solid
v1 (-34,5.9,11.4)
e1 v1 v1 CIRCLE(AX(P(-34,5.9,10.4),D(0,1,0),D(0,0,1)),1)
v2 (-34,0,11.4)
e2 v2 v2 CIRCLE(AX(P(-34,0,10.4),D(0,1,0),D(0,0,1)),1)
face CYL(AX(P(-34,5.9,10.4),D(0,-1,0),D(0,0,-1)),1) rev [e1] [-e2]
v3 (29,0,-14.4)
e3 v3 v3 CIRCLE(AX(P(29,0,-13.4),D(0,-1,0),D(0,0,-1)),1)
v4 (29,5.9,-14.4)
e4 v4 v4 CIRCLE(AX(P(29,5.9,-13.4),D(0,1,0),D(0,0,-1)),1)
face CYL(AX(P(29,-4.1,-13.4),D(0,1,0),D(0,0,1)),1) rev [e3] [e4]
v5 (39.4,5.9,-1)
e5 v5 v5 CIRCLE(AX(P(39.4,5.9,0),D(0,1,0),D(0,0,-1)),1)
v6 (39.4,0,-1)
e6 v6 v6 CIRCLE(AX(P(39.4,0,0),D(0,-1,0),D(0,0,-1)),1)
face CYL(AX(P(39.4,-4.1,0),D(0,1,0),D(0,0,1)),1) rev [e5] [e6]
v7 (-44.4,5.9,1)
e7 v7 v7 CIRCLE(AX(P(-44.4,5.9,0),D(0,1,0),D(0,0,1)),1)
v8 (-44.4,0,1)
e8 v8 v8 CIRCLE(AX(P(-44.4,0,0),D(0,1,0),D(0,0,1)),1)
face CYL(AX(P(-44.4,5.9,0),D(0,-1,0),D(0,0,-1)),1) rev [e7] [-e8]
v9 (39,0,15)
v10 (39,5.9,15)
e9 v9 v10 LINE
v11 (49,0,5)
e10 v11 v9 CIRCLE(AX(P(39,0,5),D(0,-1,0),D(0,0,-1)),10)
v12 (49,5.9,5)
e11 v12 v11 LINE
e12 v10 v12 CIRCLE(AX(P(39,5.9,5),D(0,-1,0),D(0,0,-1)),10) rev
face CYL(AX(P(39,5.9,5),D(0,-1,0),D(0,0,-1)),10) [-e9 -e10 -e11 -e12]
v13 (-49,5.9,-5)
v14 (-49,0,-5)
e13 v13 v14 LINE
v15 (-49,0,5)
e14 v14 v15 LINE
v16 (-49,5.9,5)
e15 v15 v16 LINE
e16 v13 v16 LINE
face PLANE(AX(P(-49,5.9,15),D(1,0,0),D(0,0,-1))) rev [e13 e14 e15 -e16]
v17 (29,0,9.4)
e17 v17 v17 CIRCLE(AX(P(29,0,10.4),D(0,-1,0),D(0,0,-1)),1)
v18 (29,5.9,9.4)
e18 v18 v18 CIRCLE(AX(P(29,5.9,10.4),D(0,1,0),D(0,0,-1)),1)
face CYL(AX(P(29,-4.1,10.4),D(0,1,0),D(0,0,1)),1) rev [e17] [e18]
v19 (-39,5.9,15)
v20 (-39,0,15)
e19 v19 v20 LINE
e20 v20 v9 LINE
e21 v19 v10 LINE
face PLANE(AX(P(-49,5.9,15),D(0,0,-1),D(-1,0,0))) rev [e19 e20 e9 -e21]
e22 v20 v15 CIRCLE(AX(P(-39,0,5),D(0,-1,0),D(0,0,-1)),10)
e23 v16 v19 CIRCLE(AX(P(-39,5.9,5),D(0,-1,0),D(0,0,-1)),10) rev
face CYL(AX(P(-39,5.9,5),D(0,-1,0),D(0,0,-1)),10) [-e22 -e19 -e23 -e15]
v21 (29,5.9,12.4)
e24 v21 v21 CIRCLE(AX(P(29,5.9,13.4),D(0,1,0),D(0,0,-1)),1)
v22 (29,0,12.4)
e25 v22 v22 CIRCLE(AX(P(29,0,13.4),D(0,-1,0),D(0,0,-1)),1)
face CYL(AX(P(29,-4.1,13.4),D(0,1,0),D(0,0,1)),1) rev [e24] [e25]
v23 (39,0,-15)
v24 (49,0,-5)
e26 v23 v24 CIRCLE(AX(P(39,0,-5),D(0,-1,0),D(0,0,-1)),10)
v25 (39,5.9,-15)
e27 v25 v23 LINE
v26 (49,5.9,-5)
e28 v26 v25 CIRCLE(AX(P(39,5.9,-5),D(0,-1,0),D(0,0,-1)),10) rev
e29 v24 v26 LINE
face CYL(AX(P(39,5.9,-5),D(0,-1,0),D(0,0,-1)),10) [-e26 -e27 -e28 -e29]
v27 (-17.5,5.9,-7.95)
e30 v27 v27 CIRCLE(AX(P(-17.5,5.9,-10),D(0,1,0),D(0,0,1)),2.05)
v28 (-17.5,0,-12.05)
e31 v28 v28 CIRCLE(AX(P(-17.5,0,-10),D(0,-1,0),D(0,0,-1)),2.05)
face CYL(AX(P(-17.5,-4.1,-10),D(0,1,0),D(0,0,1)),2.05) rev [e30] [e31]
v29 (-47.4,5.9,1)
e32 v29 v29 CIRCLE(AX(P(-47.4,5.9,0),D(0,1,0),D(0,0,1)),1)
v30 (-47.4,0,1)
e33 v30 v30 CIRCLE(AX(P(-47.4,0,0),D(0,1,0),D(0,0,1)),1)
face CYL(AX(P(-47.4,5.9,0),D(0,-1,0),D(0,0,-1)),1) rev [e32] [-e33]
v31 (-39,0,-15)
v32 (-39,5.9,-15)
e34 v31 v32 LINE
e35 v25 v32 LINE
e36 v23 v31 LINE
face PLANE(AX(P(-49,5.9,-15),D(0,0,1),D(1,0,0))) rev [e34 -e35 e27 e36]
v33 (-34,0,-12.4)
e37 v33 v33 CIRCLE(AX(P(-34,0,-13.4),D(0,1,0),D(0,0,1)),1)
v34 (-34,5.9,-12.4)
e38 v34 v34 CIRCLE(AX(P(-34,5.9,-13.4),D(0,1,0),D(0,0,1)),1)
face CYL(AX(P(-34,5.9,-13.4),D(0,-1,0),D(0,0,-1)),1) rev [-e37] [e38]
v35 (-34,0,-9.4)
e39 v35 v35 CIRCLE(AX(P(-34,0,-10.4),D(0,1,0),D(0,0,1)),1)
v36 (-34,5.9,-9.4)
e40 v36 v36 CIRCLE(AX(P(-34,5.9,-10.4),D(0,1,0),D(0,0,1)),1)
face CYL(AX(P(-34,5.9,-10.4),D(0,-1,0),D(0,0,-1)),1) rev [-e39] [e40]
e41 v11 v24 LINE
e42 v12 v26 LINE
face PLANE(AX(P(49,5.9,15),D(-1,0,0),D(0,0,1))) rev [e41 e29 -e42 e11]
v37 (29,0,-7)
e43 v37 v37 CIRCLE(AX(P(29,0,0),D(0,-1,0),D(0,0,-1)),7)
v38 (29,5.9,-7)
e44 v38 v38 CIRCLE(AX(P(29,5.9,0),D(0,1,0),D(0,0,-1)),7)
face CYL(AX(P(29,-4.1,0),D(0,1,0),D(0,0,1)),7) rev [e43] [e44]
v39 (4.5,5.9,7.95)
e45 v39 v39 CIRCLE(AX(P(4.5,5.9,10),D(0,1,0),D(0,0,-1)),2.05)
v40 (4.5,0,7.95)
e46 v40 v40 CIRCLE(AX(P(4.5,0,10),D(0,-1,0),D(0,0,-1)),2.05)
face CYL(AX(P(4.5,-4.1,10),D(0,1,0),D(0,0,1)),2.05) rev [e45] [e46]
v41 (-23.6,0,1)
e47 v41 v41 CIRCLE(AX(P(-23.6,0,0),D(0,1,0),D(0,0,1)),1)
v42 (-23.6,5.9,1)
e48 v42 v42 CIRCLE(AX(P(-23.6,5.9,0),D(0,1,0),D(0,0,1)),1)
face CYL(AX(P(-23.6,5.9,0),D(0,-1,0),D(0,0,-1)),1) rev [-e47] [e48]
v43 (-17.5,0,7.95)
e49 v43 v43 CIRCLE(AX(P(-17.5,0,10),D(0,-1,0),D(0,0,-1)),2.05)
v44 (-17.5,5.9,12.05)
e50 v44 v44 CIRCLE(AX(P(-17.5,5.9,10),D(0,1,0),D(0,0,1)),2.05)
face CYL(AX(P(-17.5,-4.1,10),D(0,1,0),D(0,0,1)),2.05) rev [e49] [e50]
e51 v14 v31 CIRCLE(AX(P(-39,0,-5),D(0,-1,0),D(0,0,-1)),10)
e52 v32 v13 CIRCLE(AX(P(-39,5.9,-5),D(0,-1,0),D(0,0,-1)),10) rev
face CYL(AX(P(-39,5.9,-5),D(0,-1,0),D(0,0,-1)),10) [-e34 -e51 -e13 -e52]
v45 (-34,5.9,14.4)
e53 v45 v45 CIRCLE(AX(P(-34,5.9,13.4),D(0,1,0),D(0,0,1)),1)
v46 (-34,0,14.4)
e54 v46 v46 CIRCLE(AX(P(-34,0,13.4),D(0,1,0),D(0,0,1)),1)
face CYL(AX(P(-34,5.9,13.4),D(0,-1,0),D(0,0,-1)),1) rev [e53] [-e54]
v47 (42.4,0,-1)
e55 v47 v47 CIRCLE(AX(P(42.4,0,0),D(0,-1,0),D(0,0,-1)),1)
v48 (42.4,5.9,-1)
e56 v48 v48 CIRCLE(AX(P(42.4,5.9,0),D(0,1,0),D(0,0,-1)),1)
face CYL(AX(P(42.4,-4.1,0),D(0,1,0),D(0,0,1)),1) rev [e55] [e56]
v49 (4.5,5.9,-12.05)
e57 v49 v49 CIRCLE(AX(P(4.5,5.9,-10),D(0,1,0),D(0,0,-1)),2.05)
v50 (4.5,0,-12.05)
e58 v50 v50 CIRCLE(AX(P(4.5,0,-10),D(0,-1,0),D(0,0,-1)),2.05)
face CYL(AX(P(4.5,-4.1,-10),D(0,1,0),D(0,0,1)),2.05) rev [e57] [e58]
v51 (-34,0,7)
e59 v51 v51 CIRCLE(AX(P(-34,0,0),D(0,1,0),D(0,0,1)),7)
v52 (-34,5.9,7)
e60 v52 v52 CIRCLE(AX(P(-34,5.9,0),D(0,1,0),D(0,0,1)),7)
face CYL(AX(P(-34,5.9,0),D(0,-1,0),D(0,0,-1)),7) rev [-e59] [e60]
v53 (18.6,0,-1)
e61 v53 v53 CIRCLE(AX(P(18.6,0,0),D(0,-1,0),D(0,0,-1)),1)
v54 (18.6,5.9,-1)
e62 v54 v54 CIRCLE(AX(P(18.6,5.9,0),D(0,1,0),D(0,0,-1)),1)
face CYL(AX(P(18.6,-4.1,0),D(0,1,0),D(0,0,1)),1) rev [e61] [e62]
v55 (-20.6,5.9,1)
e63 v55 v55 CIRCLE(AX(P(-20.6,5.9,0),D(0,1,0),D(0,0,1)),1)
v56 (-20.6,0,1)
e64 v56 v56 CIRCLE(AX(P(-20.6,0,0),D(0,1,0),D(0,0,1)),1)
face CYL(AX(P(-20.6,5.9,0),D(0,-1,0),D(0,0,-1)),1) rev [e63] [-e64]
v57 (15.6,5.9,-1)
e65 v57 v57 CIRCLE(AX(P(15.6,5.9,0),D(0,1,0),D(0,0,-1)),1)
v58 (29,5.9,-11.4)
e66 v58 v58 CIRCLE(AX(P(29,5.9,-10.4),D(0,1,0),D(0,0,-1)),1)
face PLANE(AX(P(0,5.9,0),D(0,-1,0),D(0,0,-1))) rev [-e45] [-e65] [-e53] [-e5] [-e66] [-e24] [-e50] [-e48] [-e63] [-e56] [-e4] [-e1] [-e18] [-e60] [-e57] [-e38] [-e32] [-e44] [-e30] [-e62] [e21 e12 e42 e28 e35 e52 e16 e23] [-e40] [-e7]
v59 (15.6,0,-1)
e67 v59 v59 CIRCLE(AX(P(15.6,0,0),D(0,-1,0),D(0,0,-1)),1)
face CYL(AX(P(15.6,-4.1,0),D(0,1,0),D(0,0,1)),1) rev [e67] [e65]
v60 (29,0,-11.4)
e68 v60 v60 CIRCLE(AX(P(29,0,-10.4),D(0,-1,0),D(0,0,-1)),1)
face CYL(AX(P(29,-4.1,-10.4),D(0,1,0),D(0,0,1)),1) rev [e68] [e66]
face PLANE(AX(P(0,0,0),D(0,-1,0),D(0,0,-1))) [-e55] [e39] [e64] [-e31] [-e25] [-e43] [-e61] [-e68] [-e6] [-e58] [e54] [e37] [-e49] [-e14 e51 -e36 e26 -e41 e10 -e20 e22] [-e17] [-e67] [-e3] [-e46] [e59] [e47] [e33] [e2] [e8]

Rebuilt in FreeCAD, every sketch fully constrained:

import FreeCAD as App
import Part
import Sketcher


def edges_at(feature, points):
    """Names of the edges that pass closest to the given points."""
    edges = feature.Shape.Edges
    near = lambda p: min(range(len(edges)), key=lambda i: edges[i].distToShape(Part.Vertex(*p))[0])
    return sorted({f"Edge{near(p) + 1}" for p in points})


def add_polygon(sketch, points):
    """Adds a closed chain of lines whose ends are joined by coincident constraints."""
    first, n = sketch.GeometryCount, len(points)
    for a, b in zip(points, points[1:] + points[:1]):
        sketch.addGeometry(Part.LineSegment(App.Vector(*a, 0), App.Vector(*b, 0)), False)
    for i in range(n):
        sketch.addConstraint(Sketcher.Constraint("Coincident", first + i, 2, first + (i + 1) % n, 1))

doc = App.newDocument("Part")
body = doc.addObject("PartDesign::Body", "Body")

# Sketch on XZ plane
sketch1 = doc.addObject("Sketcher::SketchObject", "Sketch")
body.addObject(sketch1)
sketch1.AttachmentSupport = (doc.XZ_Plane, [""])
sketch1.MapMode = "FlatFace"
add_polygon(sketch1, [(-49, -15), (-49, 15), (49, 15), (49, -15)])  # lines 0-3
sketch1.addGeometry(Part.Circle(App.Vector(-34, 13.4, 0), App.Vector(0, 0, 1), 1), False)  # 4
sketch1.addGeometry(Part.Circle(App.Vector(-34, 10.4, 0), App.Vector(0, 0, 1), 1), False)  # 5
sketch1.addGeometry(Part.Circle(App.Vector(-47.4, 0, 0), App.Vector(0, 0, 1), 1), False)  # 6
sketch1.addGeometry(Part.Circle(App.Vector(-44.4, 0, 0), App.Vector(0, 0, 1), 1), False)  # 7
sketch1.addGeometry(Part.Circle(App.Vector(-34, 0, 0), App.Vector(0, 0, 1), 7), False)  # 8
sketch1.addGeometry(Part.Circle(App.Vector(-23.6, 0, 0), App.Vector(0, 0, 1), 1), False)  # 9
sketch1.addGeometry(Part.Circle(App.Vector(-20.6, 0, 0), App.Vector(0, 0, 1), 1), False)  # 10
sketch1.addGeometry(Part.Circle(App.Vector(-34, -10.4, 0), App.Vector(0, 0, 1), 1), False)  # 11
sketch1.addGeometry(Part.Circle(App.Vector(-34, -13.4, 0), App.Vector(0, 0, 1), 1), False)  # 12
sketch1.addConstraint([
    Sketcher.Constraint("Vertical", 0),
    Sketcher.Constraint("Horizontal", 1),
    Sketcher.Constraint("Vertical", 2),
    Sketcher.Constraint("Horizontal", 3),
    Sketcher.Constraint("Equal", 4, 5),
    Sketcher.Constraint("Equal", 5, 6),
    Sketcher.Constraint("Equal", 6, 7),
    Sketcher.Constraint("Equal", 7, 9),
    Sketcher.Constraint("Equal", 9, 10),
    Sketcher.Constraint("Equal", 10, 11),
    Sketcher.Constraint("Equal", 11, 12),
    Sketcher.Constraint("Symmetric", 0, 2, 2, 2, -1, 1),
    Sketcher.Constraint("Symmetric", 5, 3, 11, 3, -1),
    Sketcher.Constraint("Symmetric", 4, 3, 12, 3, -1),
    Sketcher.Constraint("PointOnObject", 6, 3, -1),
    Sketcher.Constraint("PointOnObject", 7, 3, -1),
    Sketcher.Constraint("PointOnObject", 8, 3, -1),
    Sketcher.Constraint("PointOnObject", 9, 3, -1),
    Sketcher.Constraint("PointOnObject", 10, 3, -1),
    Sketcher.Constraint("Vertical", 4, 3, 5, 3),
    Sketcher.Constraint("Vertical", 5, 3, 8, 3),
    Sketcher.Constraint("Diameter", 4, 2.0),
    Sketcher.Constraint("Diameter", 8, 14.0),
    Sketcher.Constraint("DistanceX", 1, 1, 1, 2, 98.0),
    Sketcher.Constraint("DistanceY", 0, 1, 0, 2, 30.0),
    Sketcher.Constraint("DistanceX", 4, 3, -1, 1, 34.0),
    Sketcher.Constraint("DistanceY", 5, 3, 4, 3, 3.0),
    Sketcher.Constraint("DistanceX", 6, 3, 7, 3, 3.0),
    Sketcher.Constraint("DistanceX", 9, 3, 10, 3, 3.0),
    Sketcher.Constraint("DistanceY", -1, 1, 4, 3, 13.4),
    Sketcher.Constraint("DistanceX", 6, 3, -1, 1, 47.4),
    Sketcher.Constraint("DistanceX", 9, 3, -1, 1, 23.6),
])
pad1 = doc.addObject("PartDesign::Pad", "Pad")
body.addObject(pad1)
pad1.Profile = sketch1
pad1.Length = 5.9
pad1.Reversed = True

# Sketch on XZ plane
sketch2 = doc.addObject("Sketcher::SketchObject", "Sketch001")
body.addObject(sketch2)
sketch2.AttachmentSupport = (doc.XZ_Plane, [""])
sketch2.MapMode = "FlatFace"
sketch2.AttachmentOffset = App.Placement(App.Vector(0, 0, -5.9), App.Rotation())
sketch2.addGeometry([
    Part.Circle(App.Vector(-34, 0, 0), App.Vector(0, 0, 1), 7),  # 0
    Part.Circle(App.Vector(-34, 13.4, 0), App.Vector(0, 0, 1), 1),  # 1
    Part.Circle(App.Vector(-34, 10.4, 0), App.Vector(0, 0, 1), 1),  # 2
    Part.Circle(App.Vector(-44.4, 0, 0), App.Vector(0, 0, 1), 1),  # 3
    Part.Circle(App.Vector(-47.4, 0, 0), App.Vector(0, 0, 1), 1),  # 4
    Part.Circle(App.Vector(-34, -13.4, 0), App.Vector(0, 0, 1), 1),  # 5
    Part.Circle(App.Vector(-23.6, 0, 0), App.Vector(0, 0, 1), 1),  # 6
    Part.Circle(App.Vector(-20.6, 0, 0), App.Vector(0, 0, 1), 1),  # 7
    Part.Circle(App.Vector(-34, -10.4, 0), App.Vector(0, 0, 1), 1),  # 8
    Part.Circle(App.Vector(29, 13.4, 0), App.Vector(0, 0, 1), 1),  # 9
    Part.Circle(App.Vector(29, 10.4, 0), App.Vector(0, 0, 1), 1),  # 10
    Part.Circle(App.Vector(42.4, 0, 0), App.Vector(0, 0, 1), 1),  # 11
    Part.Circle(App.Vector(39.4, 0, 0), App.Vector(0, 0, 1), 1),  # 12
    Part.Circle(App.Vector(29, 0, 0), App.Vector(0, 0, 1), 7),  # 13
    Part.Circle(App.Vector(29, -10.4, 0), App.Vector(0, 0, 1), 1),  # 14
    Part.Circle(App.Vector(29, -13.4, 0), App.Vector(0, 0, 1), 1),  # 15
    Part.Circle(App.Vector(18.6, 0, 0), App.Vector(0, 0, 1), 1),  # 16
    Part.Circle(App.Vector(15.6, 0, 0), App.Vector(0, 0, 1), 1),  # 17
], False)
sketch2.addConstraint([
    Sketcher.Constraint("Equal", 1, 2),
    Sketcher.Constraint("Equal", 2, 3),
    Sketcher.Constraint("Equal", 3, 4),
    Sketcher.Constraint("Equal", 4, 5),
    Sketcher.Constraint("Equal", 5, 6),
    Sketcher.Constraint("Equal", 6, 7),
    Sketcher.Constraint("Equal", 7, 8),
    Sketcher.Constraint("Equal", 8, 9),
    Sketcher.Constraint("Equal", 9, 10),
    Sketcher.Constraint("Equal", 10, 11),
    Sketcher.Constraint("Equal", 11, 12),
    Sketcher.Constraint("Equal", 0, 13),
    Sketcher.Constraint("Equal", 12, 14),
    Sketcher.Constraint("Equal", 14, 15),
    Sketcher.Constraint("Equal", 15, 16),
    Sketcher.Constraint("Equal", 16, 17),
    Sketcher.Constraint("Symmetric", 1, 3, 5, 3, -1),
    Sketcher.Constraint("Symmetric", 2, 3, 8, 3, -1),
    Sketcher.Constraint("Symmetric", 10, 3, 14, 3, -1),
    Sketcher.Constraint("Symmetric", 9, 3, 15, 3, -1),
    Sketcher.Constraint("PointOnObject", 0, 3, -1),
    Sketcher.Constraint("PointOnObject", 3, 3, -1),
    Sketcher.Constraint("PointOnObject", 4, 3, -1),
    Sketcher.Constraint("PointOnObject", 6, 3, -1),
    Sketcher.Constraint("PointOnObject", 7, 3, -1),
    Sketcher.Constraint("PointOnObject", 11, 3, -1),
    Sketcher.Constraint("PointOnObject", 12, 3, -1),
    Sketcher.Constraint("PointOnObject", 13, 3, -1),
    Sketcher.Constraint("PointOnObject", 16, 3, -1),
    Sketcher.Constraint("PointOnObject", 17, 3, -1),
    Sketcher.Constraint("Horizontal", 1, 3, 9, 3),
    Sketcher.Constraint("Horizontal", 2, 3, 10, 3),
    Sketcher.Constraint("Vertical", 0, 3, 1, 3),
    Sketcher.Constraint("Vertical", 1, 3, 2, 3),
    Sketcher.Constraint("Vertical", 9, 3, 10, 3),
    Sketcher.Constraint("Vertical", 10, 3, 13, 3),
    Sketcher.Constraint("Diameter", 0, 14.0),
    Sketcher.Constraint("Diameter", 1, 2.0),
    Sketcher.Constraint("DistanceX", 0, 3, -1, 1, 34.0),
    Sketcher.Constraint("DistanceX", -1, 1, 9, 3, 29.0),
    Sketcher.Constraint("DistanceY", 2, 3, 1, 3, 3.0),
    Sketcher.Constraint("DistanceX", 4, 3, 3, 3, 3.0),
    Sketcher.Constraint("DistanceX", 6, 3, 7, 3, 3.0),
    Sketcher.Constraint("DistanceX", 7, 3, 11, 3, 63.0),
    Sketcher.Constraint("DistanceX", 12, 3, 11, 3, 3.0),
    Sketcher.Constraint("DistanceX", 17, 3, 16, 3, 3.0),
    Sketcher.Constraint("DistanceY", -1, 1, 1, 3, 13.4),
    Sketcher.Constraint("DistanceX", 3, 3, -1, 1, 44.4),
    Sketcher.Constraint("DistanceX", 6, 3, -1, 1, 23.6),
    Sketcher.Constraint("DistanceX", -1, 1, 16, 3, 18.6),
])
pocket1 = doc.addObject("PartDesign::Pocket", "Pocket")
body.addObject(pocket1)
pocket1.Profile = sketch2
pocket1.Length = 10
pocket1.Reversed = True
doc.recompute()

fillet = doc.addObject("PartDesign::Fillet", "Fillet")
body.addObject(fillet)
fillet.Base = (pocket1, edges_at(pocket1, [
    (49, 2.95, 15),
    (-49, 2.95, 15),
    (-49, 2.95, -15),
    (49, 2.95, -15),
]))
fillet.Radius = 10

# Sketch on XZ plane
sketch3 = doc.addObject("Sketcher::SketchObject", "Sketch002")
body.addObject(sketch3)
sketch3.AttachmentSupport = (doc.XZ_Plane, [""])
sketch3.MapMode = "FlatFace"
sketch3.AttachmentOffset = App.Placement(App.Vector(0, 0, -5.9), App.Rotation())
sketch3.addGeometry([
    Part.Circle(App.Vector(-17.5, -10, 0), App.Vector(0, 0, 1), 2),
    Part.Circle(App.Vector(-17.5, 10, 0), App.Vector(0, 0, 1), 2),
    Part.Circle(App.Vector(4.5, 10, 0), App.Vector(0, 0, 1), 2),
    Part.Circle(App.Vector(4.5, -10, 0), App.Vector(0, 0, 1), 2),
], False)
sketch3.addConstraint([
    Sketcher.Constraint("Equal", 0, 1),
    Sketcher.Constraint("Equal", 1, 2),
    Sketcher.Constraint("Equal", 2, 3),
    Sketcher.Constraint("Symmetric", 0, 3, 1, 3, -1),
    Sketcher.Constraint("Symmetric", 2, 3, 3, 3, -1),
    Sketcher.Constraint("Horizontal", 1, 3, 2, 3),
    Sketcher.Constraint("Diameter", 0, 4.1),
    Sketcher.Constraint("DistanceY", 0, 3, -1, 1, 10.0),
    Sketcher.Constraint("DistanceX", 1, 3, 2, 3, 22.0),
    Sketcher.Constraint("DistanceX", 0, 3, -1, 1, 17.5),
])
pocket2 = doc.addObject("PartDesign::Pocket", "Pocket001")
body.addObject(pocket2)
pocket2.Profile = sketch3
pocket2.Length = 10
pocket2.Reversed = True

doc.recompute()
